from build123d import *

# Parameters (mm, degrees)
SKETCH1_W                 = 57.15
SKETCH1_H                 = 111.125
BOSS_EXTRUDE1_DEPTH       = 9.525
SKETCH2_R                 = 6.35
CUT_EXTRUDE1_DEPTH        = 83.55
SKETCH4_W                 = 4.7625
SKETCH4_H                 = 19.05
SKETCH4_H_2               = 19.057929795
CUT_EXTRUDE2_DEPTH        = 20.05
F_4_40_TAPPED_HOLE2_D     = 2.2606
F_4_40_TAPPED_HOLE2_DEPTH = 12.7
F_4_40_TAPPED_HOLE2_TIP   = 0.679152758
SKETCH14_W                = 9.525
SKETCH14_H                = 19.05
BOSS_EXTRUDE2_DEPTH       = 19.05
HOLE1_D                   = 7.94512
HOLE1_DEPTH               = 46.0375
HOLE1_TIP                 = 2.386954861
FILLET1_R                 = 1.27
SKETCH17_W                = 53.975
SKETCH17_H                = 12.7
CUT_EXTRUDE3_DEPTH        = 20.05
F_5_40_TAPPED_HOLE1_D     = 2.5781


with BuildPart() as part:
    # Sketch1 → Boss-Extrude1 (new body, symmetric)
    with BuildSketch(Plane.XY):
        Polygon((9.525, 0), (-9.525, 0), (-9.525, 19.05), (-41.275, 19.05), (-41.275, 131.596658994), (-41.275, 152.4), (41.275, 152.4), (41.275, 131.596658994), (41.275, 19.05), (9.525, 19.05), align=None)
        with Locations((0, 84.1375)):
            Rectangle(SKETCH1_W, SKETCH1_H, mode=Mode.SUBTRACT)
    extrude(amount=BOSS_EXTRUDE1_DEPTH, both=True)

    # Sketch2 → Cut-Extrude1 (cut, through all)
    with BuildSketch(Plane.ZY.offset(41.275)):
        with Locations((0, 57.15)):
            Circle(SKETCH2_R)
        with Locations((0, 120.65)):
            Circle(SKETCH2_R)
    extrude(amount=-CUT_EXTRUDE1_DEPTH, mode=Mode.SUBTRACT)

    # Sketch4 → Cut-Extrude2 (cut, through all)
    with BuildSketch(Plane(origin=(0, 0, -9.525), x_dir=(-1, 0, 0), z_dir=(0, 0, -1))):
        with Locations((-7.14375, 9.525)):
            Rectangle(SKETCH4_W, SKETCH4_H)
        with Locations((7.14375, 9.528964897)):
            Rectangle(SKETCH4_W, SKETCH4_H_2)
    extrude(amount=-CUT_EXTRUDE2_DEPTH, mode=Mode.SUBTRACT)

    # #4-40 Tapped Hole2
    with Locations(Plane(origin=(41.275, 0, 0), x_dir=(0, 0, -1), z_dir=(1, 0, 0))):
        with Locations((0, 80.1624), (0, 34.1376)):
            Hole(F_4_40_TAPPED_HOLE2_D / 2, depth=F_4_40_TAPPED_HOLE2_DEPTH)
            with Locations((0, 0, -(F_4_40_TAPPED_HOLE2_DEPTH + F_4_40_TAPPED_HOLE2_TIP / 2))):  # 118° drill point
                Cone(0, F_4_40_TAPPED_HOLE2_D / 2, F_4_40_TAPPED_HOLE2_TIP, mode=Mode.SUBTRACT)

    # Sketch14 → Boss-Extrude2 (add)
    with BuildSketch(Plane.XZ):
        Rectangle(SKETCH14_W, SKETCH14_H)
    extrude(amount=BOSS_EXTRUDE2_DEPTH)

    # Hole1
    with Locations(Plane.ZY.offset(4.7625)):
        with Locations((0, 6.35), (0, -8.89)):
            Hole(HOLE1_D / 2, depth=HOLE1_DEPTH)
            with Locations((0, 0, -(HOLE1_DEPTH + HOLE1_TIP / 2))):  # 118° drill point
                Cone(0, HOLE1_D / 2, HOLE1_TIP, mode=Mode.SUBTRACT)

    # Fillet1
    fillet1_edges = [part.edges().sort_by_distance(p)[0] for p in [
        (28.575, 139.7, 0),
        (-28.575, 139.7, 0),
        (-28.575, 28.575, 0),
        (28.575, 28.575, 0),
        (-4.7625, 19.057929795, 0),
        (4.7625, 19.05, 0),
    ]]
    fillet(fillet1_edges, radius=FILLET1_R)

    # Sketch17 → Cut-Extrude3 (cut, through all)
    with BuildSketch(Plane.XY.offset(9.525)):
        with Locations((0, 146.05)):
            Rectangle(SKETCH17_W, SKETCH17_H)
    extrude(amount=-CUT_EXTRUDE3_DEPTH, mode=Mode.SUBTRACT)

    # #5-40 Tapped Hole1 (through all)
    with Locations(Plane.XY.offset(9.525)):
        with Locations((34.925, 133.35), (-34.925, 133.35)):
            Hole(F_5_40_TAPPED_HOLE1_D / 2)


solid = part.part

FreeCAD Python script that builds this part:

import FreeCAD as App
import Part
import Sketcher
Q = App.Units.Quantity


def edges_at(feature, points):
    """Names of the edges that pass closest to the given points."""
    edges = feature.Shape.Edges
    near = lambda p: min(range(len(edges)), key=lambda i: edges[i].distToShape(Part.Vertex(*p))[0])
    return sorted({f"Edge{near(p) + 1}" for p in points})

doc = App.newDocument("Part")
body = doc.addObject("PartDesign::Body", "Body")

# Sketch on XY plane
sketch1 = body.newObject("Sketcher::SketchObject", "Sketch")
sketch1.AttachmentSupport = (doc.getObject("XY_Plane"), [""])
sketch1.MapMode = "FlatFace"
sketch1.addGeometry([
    Part.LineSegment(App.Vector(-10, 0, 0), App.Vector(10, 0, 0)),  # 0
    Part.LineSegment(App.Vector(10, 0, 0), App.Vector(10, 19, 0)),  # 1
    Part.LineSegment(App.Vector(10, 19, 0), App.Vector(41, 19, 0)),  # 2
    Part.LineSegment(App.Vector(41, 19, 0), App.Vector(41, 152, 0)),  # 3
    Part.LineSegment(App.Vector(41, 152, 0), App.Vector(-41, 152, 0)),  # 4
    Part.LineSegment(App.Vector(-41, 152, 0), App.Vector(-41, 19, 0)),  # 5
    Part.LineSegment(App.Vector(-41, 19, 0), App.Vector(-10, 19, 0)),  # 6
    Part.LineSegment(App.Vector(-10, 19, 0), App.Vector(-10, 0, 0)),  # 7
    Part.LineSegment(App.Vector(-29, 29, 0), App.Vector(-29, 140, 0)),  # 8
    Part.LineSegment(App.Vector(-29, 140, 0), App.Vector(29, 140, 0)),  # 9
    Part.LineSegment(App.Vector(29, 140, 0), App.Vector(29, 29, 0)),  # 10
    Part.LineSegment(App.Vector(29, 29, 0), App.Vector(-29, 29, 0)),  # 11
], False)
sketch1.addConstraint([
    Sketcher.Constraint("Coincident", 0, 2, 1, 1),
    Sketcher.Constraint("Coincident", 1, 2, 2, 1),
    Sketcher.Constraint("Coincident", 2, 2, 3, 1),
    Sketcher.Constraint("Coincident", 3, 2, 4, 1),
    Sketcher.Constraint("Coincident", 4, 2, 5, 1),
    Sketcher.Constraint("Coincident", 5, 2, 6, 1),
    Sketcher.Constraint("Coincident", 6, 2, 7, 1),
    Sketcher.Constraint("Coincident", 7, 2, 0, 1),
    Sketcher.Constraint("Coincident", 8, 2, 9, 1),
    Sketcher.Constraint("Coincident", 9, 2, 10, 1),
    Sketcher.Constraint("Coincident", 10, 2, 11, 1),
    Sketcher.Constraint("Coincident", 11, 2, 8, 1),
    Sketcher.Constraint("Horizontal", 0),
    Sketcher.Constraint("Vertical", 1),
    Sketcher.Constraint("Horizontal", 2),
    Sketcher.Constraint("Vertical", 3),
    Sketcher.Constraint("Horizontal", 4),
    Sketcher.Constraint("Vertical", 5),
    Sketcher.Constraint("Horizontal", 6),
    Sketcher.Constraint("Vertical", 7),
    Sketcher.Constraint("Vertical", 8),
    Sketcher.Constraint("Horizontal", 9),
    Sketcher.Constraint("Vertical", 10),
    Sketcher.Constraint("Horizontal", 11),
    Sketcher.Constraint("Symmetric", 0, 2, 7, 2, -1, 1),
    Sketcher.Constraint("Symmetric", 2, 2, 5, 2, -2),
    Sketcher.Constraint("Equal", 0, 1),
    Sketcher.Constraint("DistanceY", -1, 1, 3, 2, Q("6 in")),
    Sketcher.Constraint("DistanceX", 4, 2, 1, 2, Q("2 in")),
    Sketcher.Constraint("DistanceX", 0, 1, 0, 2, Q("0.75 in")),
    Sketcher.Constraint("DistanceX", 9, 1, 9, 2, Q("2.25 in")),
    Sketcher.Constraint("DistanceY", -1, 1, 8, 2, Q("5.5 in")),
    Sketcher.Constraint("DistanceX", 4, 2, 8, 2, Q("0.5 in")),
    Sketcher.Constraint("DistanceY", 8, 1, 8, 2, Q("4.375 in")),
])
pad1 = body.newObject("PartDesign::Pad", "Pad")
pad1.Profile = sketch1
pad1.Length = Q("0.75 in")
pad1.Midplane = True

# Sketch on YZ plane
sketch2 = body.newObject("Sketcher::SketchObject", "Sketch001")
sketch2.AttachmentSupport = (doc.getObject("YZ_Plane"), [""])
sketch2.MapMode = "FlatFace"
sketch2.AttachmentOffset = App.Placement(App.Vector(0, 0, -1.625 * 25.4), App.Rotation())
sketch2.addGeometry([
    Part.Circle(App.Vector(57, 0, 0), App.Vector(0, 0, 1), 6),
    Part.Circle(App.Vector(121, 0, 0), App.Vector(0, 0, 1), 6),
], False)
sketch2.addConstraint([
    Sketcher.Constraint("Equal", 0, 1),
    Sketcher.Constraint("PointOnObject", 0, 3, -1),
    Sketcher.Constraint("PointOnObject", 1, 3, -1),
    Sketcher.Constraint("Diameter", 0, Q("0.5 in")),
    Sketcher.Constraint("DistanceX", 0, 3, 1, 3, Q("2.5 in")),
    Sketcher.Constraint("DistanceX", -1, 1, 0, 3, Q("2.25 in")),
])
pocket1 = body.newObject("PartDesign::Pocket", "Pocket")
pocket1.Profile = sketch2
pocket1.Type = "ThroughAll"
pocket1.Reversed = True

# Sketch on XY plane
sketch3 = body.newObject("Sketcher::SketchObject", "Sketch002")
sketch3.AttachmentSupport = (doc.getObject("XY_Plane"), [""])
sketch3.MapMode = "FlatFace"
sketch3.AttachmentOffset = App.Placement(App.Vector(0, 0, -0.375 * 25.4), App.Rotation())
sketch3.addGeometry([
    Part.LineSegment(App.Vector(9.5, 19.1, 0), App.Vector(9.5, 0, 0)),  # 0
    Part.LineSegment(App.Vector(9.5, 0, 0), App.Vector(4.8, 0, 0)),  # 1
    Part.LineSegment(App.Vector(4.8, 0, 0), App.Vector(4.8, 19.1, 0)),  # 2
    Part.LineSegment(App.Vector(4.8, 19.1, 0), App.Vector(9.5, 19.1, 0)),  # 3
    Part.LineSegment(App.Vector(-4.8, 19.1, 0), App.Vector(-4.8, 0, 0)),  # 4
    Part.LineSegment(App.Vector(-4.8, 0, 0), App.Vector(-9.5, 0, 0)),  # 5
    Part.LineSegment(App.Vector(-9.5, 0, 0), App.Vector(-9.5, 19.1, 0)),  # 6
    Part.LineSegment(App.Vector(-9.5, 19.1, 0), App.Vector(-4.8, 19.1, 0)),  # 7
], False)
sketch3.addConstraint([
    Sketcher.Constraint("Coincident", 0, 2, 1, 1),
    Sketcher.Constraint("Coincident", 1, 2, 2, 1),
    Sketcher.Constraint("Coincident", 2, 2, 3, 1),
    Sketcher.Constraint("Coincident", 3, 2, 0, 1),
    Sketcher.Constraint("Coincident", 4, 2, 5, 1),
    Sketcher.Constraint("Coincident", 5, 2, 6, 1),
    Sketcher.Constraint("Coincident", 6, 2, 7, 1),
    Sketcher.Constraint("Coincident", 7, 2, 4, 1),
    Sketcher.Constraint("Vertical", 0),
    Sketcher.Constraint("Horizontal", 1),
    Sketcher.Constraint("Vertical", 2),
    Sketcher.Constraint("Horizontal", 3),
    Sketcher.Constraint("Vertical", 4),
    Sketcher.Constraint("Horizontal", 5),
    Sketcher.Constraint("Vertical", 6),
    Sketcher.Constraint("Horizontal", 7),
    Sketcher.Constraint("Symmetric", 1, 2, 4, 2, -1, 1),
    Sketcher.Constraint("Symmetric", 0, 2, 5, 2, -2),
    Sketcher.Constraint("DistanceY", 0, 2, 0, 1, Q("0.75 in")),
    Sketcher.Constraint("DistanceX", 1, 2, 1, 1, Q("0.1875 in")),
    Sketcher.Constraint("DistanceX", 5, 2, 0, 2, Q("0.75 in")),
    Sketcher.Constraint("DistanceY", 4, 2, 4, 1, 19.05793),
])
pocket2 = body.newObject("PartDesign::Pocket", "Pocket001")
pocket2.Profile = sketch3
pocket2.Type = "ThroughAll"
pocket2.Reversed = True

# Sketch on YZ plane
sketch4 = body.newObject("Sketcher::SketchObject", "Sketch003")
sketch4.AttachmentSupport = (doc.getObject("YZ_Plane"), [""])
sketch4.MapMode = "FlatFace"
sketch4.AttachmentOffset = App.Placement(App.Vector(0, 0, 1.625 * 25.4), App.Rotation())
sketch4.addGeometry([
    Part.Circle(App.Vector(80.2, 0, 0), App.Vector(0, 0, 1), 1.1),
    Part.Circle(App.Vector(34.1, 0, 0), App.Vector(0, 0, 1), 1.1),
], False)
sketch4.addConstraint([
    Sketcher.Constraint("Equal", 0, 1),
    Sketcher.Constraint("PointOnObject", 0, 3, -1),
    Sketcher.Constraint("PointOnObject", 1, 3, -1),
    Sketcher.Constraint("Diameter", 0, Q("0.089 in")),
    Sketcher.Constraint("DistanceX", -1, 1, 0, 3, Q("3.156 in")),
    Sketcher.Constraint("DistanceX", -1, 1, 1, 3, Q("1.344 in")),
])
doc.recompute()
hole = body.newObject("PartDesign::Hole", "Hole")
hole.Profile = sketch4
hole.ThreadType = "None"
hole.Diameter = Q("0.089 in")
hole.DepthType = "Dimension"
hole.Depth = Q("0.5 in")
hole.DrillPoint = "Angled"
hole.DrillPointAngle = 118

# Sketch on XZ plane
sketch5 = body.newObject("Sketcher::SketchObject", "Sketch004")
sketch5.AttachmentSupport = (doc.getObject("XZ_Plane"), [""])
sketch5.MapMode = "FlatFace"
sketch5.addGeometry([
    Part.LineSegment(App.Vector(-5, 10, 0), App.Vector(-5, -10, 0)),
    Part.LineSegment(App.Vector(-5, -10, 0), App.Vector(5, -10, 0)),
    Part.LineSegment(App.Vector(5, -10, 0), App.Vector(5, 10, 0)),
    Part.LineSegment(App.Vector(5, 10, 0), App.Vector(-5, 10, 0)),
], False)
sketch5.addConstraint([
    Sketcher.Constraint("Coincident", 0, 2, 1, 1),
    Sketcher.Constraint("Coincident", 1, 2, 2, 1),
    Sketcher.Constraint("Coincident", 2, 2, 3, 1),
    Sketcher.Constraint("Coincident", 3, 2, 0, 1),
    Sketcher.Constraint("Vertical", 0),
    Sketcher.Constraint("Horizontal", 1),
    Sketcher.Constraint("Vertical", 2),
    Sketcher.Constraint("Horizontal", 3),
    Sketcher.Constraint("Symmetric", 0, 2, 2, 2, -1, 1),
    Sketcher.Constraint("DistanceY", 0, 2, 0, 1, Q("0.75 in")),
    Sketcher.Constraint("DistanceX", 1, 1, 1, 2, Q("0.375 in")),
])
pad2 = body.newObject("PartDesign::Pad", "Pad001")
pad2.Profile = sketch5
pad2.Length = Q("0.75 in")

# Sketch on YZ plane
sketch6 = body.newObject("Sketcher::SketchObject", "Sketch005")
sketch6.AttachmentSupport = (doc.getObject("YZ_Plane"), [""])
sketch6.MapMode = "FlatFace"
sketch6.AttachmentOffset = App.Placement(App.Vector(0, 0, -0.1875 * 25.4), App.Rotation())
sketch6.addGeometry([
    Part.Circle(App.Vector(6.3, 0, 0), App.Vector(0, 0, 1), 4),
    Part.Circle(App.Vector(-8.9, 0, 0), App.Vector(0, 0, 1), 4),
], False)
sketch6.addConstraint([
    Sketcher.Constraint("Equal", 0, 1),
    Sketcher.Constraint("PointOnObject", 0, 3, -1),
    Sketcher.Constraint("PointOnObject", 1, 3, -1),
    Sketcher.Constraint("Diameter", 0, Q("0.3128 in")),
    Sketcher.Constraint("DistanceX", 1, 3, 0, 3, Q("0.6 in")),
    Sketcher.Constraint("DistanceX", -1, 1, 0, 3, Q("0.25 in")),
])
doc.recompute()
hole2 = body.newObject("PartDesign::Hole", "Hole001")
hole2.Profile = sketch6
hole2.ThreadType = "None"
hole2.Diameter = Q("0.3128 in")
hole2.DepthType = "Dimension"
hole2.Depth = Q("1.8125 in")
hole2.DrillPoint = "Angled"
hole2.DrillPointAngle = 118
hole2.Reversed = True
doc.recompute()

fillet = body.newObject("PartDesign::Fillet", "Fillet")
fillet.Base = (hole2, edges_at(hole2, [
    (28.575, 139.7, 0),
    (-28.575, 139.7, 0),
    (-28.575, 28.575, 0),
    (28.575, 28.575, 0),
    (-4.763, 19.058, 0),
    (4.763, 19.05, 0),
]))
fillet.Radius = Q("0.05 in")

# Sketch on XY plane
sketch7 = body.newObject("Sketcher::SketchObject", "Sketch006")
sketch7.AttachmentSupport = (doc.getObject("XY_Plane"), [""])
sketch7.MapMode = "FlatFace"
sketch7.AttachmentOffset = App.Placement(App.Vector(0, 0, 0.375 * 25.4), App.Rotation())
sketch7.addGeometry([
    Part.LineSegment(App.Vector(-27, 152, 0), App.Vector(-27, 140, 0)),
    Part.LineSegment(App.Vector(-27, 140, 0), App.Vector(27, 140, 0)),
    Part.LineSegment(App.Vector(27, 140, 0), App.Vector(27, 152, 0)),
    Part.LineSegment(App.Vector(27, 152, 0), App.Vector(-27, 152, 0)),
], False)
sketch7.addConstraint([
    Sketcher.Constraint("Coincident", 0, 2, 1, 1),
    Sketcher.Constraint("Coincident", 1, 2, 2, 1),
    Sketcher.Constraint("Coincident", 2, 2, 3, 1),
    Sketcher.Constraint("Coincident", 3, 2, 0, 1),
    Sketcher.Constraint("Vertical", 0),
    Sketcher.Constraint("Horizontal", 1),
    Sketcher.Constraint("Vertical", 2),
    Sketcher.Constraint("Horizontal", 3),
    Sketcher.Constraint("DistanceY", 0, 2, 0, 1, Q("0.5 in")),
    Sketcher.Constraint("DistanceY", -1, 1, 2, 2, Q("6 in")),
    Sketcher.Constraint("DistanceX", 1, 1, 1, 2, Q("2.125 in")),
    Sketcher.Constraint("DistanceX", 0, 2, -1, 1, Q("1.0625 in")),
])
pocket3 = body.newObject("PartDesign::Pocket", "Pocket002")
pocket3.Profile = sketch7
pocket3.Type = "ThroughAll"

# Sketch on XY plane
sketch8 = body.newObject("Sketcher::SketchObject", "Sketch007")
sketch8.AttachmentSupport = (doc.getObject("XY_Plane"), [""])
sketch8.MapMode = "FlatFace"
sketch8.AttachmentOffset = App.Placement(App.Vector(0, 0, 0.375 * 25.4), App.Rotation())
sketch8.addGeometry([
    Part.Circle(App.Vector(34.9, 133.3, 0), App.Vector(0, 0, 1), 1.3),
    Part.Circle(App.Vector(-34.9, 133.3, 0), App.Vector(0, 0, 1), 1.3),
], False)
sketch8.addConstraint([
    Sketcher.Constraint("Equal", 0, 1),
    Sketcher.Constraint("Symmetric", 0, 3, 1, 3, -2),
    Sketcher.Constraint("Diameter", 0, Q("0.1015 in")),
    Sketcher.Constraint("DistanceY", -1, 1, 0, 3, Q("5.25 in")),
    Sketcher.Constraint("DistanceX", 1, 3, 0, 3, Q("2.75 in")),
])
doc.recompute()
hole3 = body.newObject("PartDesign::Hole", "Hole002")
hole3.Profile = sketch8
hole3.ThreadType = "None"
hole3.Diameter = Q("0.1015 in")
hole3.DepthType = "ThroughAll"

doc.recompute()
